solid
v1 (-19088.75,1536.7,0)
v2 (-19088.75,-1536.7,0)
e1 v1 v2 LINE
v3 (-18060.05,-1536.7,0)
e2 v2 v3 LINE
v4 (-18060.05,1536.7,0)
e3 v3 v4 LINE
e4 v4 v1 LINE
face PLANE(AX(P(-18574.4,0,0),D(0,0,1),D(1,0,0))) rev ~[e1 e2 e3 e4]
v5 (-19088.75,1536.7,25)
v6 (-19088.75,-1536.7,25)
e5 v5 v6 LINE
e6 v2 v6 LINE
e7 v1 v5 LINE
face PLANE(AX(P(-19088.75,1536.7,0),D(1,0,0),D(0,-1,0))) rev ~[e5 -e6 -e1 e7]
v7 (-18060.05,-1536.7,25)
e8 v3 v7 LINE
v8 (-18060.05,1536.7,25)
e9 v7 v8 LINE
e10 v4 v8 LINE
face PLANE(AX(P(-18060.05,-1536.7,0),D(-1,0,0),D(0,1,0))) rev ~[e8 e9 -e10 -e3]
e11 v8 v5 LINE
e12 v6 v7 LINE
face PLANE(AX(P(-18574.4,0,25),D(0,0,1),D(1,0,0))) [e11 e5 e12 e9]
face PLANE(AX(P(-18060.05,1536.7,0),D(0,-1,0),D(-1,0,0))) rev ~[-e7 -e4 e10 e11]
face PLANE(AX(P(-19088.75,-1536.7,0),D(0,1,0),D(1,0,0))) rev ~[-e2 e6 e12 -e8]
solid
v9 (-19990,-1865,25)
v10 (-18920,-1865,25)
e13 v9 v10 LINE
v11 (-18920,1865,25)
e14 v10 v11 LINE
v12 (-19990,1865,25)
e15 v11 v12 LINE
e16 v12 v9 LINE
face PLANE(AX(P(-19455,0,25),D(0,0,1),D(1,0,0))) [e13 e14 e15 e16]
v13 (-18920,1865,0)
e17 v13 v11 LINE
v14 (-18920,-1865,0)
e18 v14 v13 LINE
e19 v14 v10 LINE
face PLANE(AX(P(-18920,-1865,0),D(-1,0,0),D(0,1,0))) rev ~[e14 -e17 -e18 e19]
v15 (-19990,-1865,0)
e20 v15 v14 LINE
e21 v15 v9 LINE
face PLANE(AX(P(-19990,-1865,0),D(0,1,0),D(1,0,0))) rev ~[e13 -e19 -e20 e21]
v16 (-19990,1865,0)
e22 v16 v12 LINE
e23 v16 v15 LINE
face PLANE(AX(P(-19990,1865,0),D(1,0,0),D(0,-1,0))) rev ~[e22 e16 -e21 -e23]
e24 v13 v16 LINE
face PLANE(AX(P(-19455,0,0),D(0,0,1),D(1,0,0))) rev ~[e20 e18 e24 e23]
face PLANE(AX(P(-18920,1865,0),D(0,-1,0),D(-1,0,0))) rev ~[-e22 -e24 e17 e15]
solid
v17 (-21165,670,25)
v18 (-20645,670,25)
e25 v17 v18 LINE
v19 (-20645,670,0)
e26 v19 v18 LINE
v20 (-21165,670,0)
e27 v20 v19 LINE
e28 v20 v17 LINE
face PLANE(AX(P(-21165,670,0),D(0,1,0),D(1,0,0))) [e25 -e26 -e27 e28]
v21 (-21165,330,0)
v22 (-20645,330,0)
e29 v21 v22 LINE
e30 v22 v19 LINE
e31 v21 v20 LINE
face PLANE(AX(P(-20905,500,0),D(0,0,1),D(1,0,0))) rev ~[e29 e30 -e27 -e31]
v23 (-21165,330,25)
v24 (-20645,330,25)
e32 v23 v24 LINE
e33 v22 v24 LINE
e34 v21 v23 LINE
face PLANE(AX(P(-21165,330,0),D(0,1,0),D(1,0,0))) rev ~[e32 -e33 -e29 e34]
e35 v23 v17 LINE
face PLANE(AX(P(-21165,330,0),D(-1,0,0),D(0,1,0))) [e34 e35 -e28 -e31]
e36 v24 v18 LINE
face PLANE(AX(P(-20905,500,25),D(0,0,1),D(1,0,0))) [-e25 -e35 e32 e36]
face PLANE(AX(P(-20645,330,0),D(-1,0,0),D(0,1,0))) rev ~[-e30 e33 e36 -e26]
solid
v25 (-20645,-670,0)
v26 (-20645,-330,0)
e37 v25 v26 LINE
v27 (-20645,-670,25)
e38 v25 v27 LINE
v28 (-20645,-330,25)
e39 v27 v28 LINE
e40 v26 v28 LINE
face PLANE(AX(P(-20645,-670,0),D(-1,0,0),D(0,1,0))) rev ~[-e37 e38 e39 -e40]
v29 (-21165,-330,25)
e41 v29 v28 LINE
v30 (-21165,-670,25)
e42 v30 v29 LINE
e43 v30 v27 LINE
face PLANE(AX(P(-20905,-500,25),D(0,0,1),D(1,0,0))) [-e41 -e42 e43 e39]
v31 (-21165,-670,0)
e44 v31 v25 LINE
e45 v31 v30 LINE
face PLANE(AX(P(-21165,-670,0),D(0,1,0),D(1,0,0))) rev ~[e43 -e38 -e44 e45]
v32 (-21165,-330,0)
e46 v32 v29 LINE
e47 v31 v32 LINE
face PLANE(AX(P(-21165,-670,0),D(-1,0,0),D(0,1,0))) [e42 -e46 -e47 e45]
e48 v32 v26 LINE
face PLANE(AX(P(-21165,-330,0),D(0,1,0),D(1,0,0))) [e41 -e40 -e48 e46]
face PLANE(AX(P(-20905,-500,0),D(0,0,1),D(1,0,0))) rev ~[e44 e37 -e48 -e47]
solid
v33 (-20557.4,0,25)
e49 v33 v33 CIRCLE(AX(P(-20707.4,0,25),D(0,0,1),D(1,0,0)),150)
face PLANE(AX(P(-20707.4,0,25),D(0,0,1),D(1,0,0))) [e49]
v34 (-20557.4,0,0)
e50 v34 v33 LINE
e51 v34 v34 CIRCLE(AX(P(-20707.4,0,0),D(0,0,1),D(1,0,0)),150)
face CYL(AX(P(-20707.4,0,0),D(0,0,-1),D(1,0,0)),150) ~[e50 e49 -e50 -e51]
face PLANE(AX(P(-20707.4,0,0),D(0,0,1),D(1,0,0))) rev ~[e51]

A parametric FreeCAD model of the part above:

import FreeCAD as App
import Part
import Sketcher

doc = App.newDocument("Part")
body = doc.addObject("PartDesign::Body", "Body")

# Sketch on XY plane
sketch1 = doc.addObject("Sketcher::SketchObject", "Sketch")
body.addObject(sketch1)
sketch1.AttachmentSupport = (doc.XY_Plane, [""])
sketch1.MapMode = "FlatFace"
sketch1.addGeometry(Part.LineSegment(App.Vector(-18920, -1865, 0), App.Vector(-18920, 1865, 0)), False)
sketch1.addGeometry(Part.LineSegment(App.Vector(-18920, 1865, 0), App.Vector(-19990, 1865, 0)), False)
sketch1.addGeometry(Part.LineSegment(App.Vector(-19990, 1865, 0), App.Vector(-19990, -1865, 0)), False)
sketch1.addGeometry(Part.LineSegment(App.Vector(-19990, -1865, 0), App.Vector(-18920, -1865, 0)), False)
sketch1.addConstraint(Sketcher.Constraint("Coincident", 0, 2, 1, 1))
sketch1.addConstraint(Sketcher.Constraint("Coincident", 1, 2, 2, 1))
sketch1.addConstraint(Sketcher.Constraint("Coincident", 2, 2, 3, 1))
sketch1.addConstraint(Sketcher.Constraint("Coincident", 3, 2, 0, 1))
sketch1.addConstraint(Sketcher.Constraint("Vertical", 0))
sketch1.addConstraint(Sketcher.Constraint("Horizontal", 1))
sketch1.addConstraint(Sketcher.Constraint("Vertical", 2))
sketch1.addConstraint(Sketcher.Constraint("Horizontal", 3))
sketch1.addConstraint(Sketcher.Constraint("DistanceX", 1, 2, 1, 1, 1070.0))
sketch1.addConstraint(Sketcher.Constraint("DistanceY", 0, 1, 0, 2, 3730.0))
sketch1.addConstraint(Sketcher.Constraint("DistanceX", 0, 2, -1, 1, 18920.0))
sketch1.addConstraint(Sketcher.Constraint("DistanceY", -1, 1, 0, 2, 1865.0))
pad1 = doc.addObject("PartDesign::Pad", "Pad")
body.addObject(pad1)
pad1.Profile = sketch1
pad1.Length = 25
body2 = doc.addObject("PartDesign::Body", "Body001")

# Sketch on XY plane
sketch2 = doc.addObject("Sketcher::SketchObject", "Sketch001")
body2.addObject(sketch2)
sketch2.AttachmentSupport = (doc.getObject("XY_Plane001"), [""])
sketch2.MapMode = "FlatFace"
sketch2.addGeometry(Part.LineSegment(App.Vector(-21165, -330, 0), App.Vector(-21165, -670, 0)), False)
sketch2.addGeometry(Part.LineSegment(App.Vector(-21165, -670, 0), App.Vector(-20645, -670, 0)), False)
sketch2.addGeometry(Part.LineSegment(App.Vector(-20645, -670, 0), App.Vector(-20645, -330, 0)), False)
sketch2.addGeometry(Part.LineSegment(App.Vector(-20645, -330, 0), App.Vector(-21165, -330, 0)), False)
sketch2.addConstraint(Sketcher.Constraint("Coincident", 0, 2, 1, 1))
sketch2.addConstraint(Sketcher.Constraint("Coincident", 1, 2, 2, 1))
sketch2.addConstraint(Sketcher.Constraint("Coincident", 2, 2, 3, 1))
sketch2.addConstraint(Sketcher.Constraint("Coincident", 3, 2, 0, 1))
sketch2.addConstraint(Sketcher.Constraint("Vertical", 0))
sketch2.addConstraint(Sketcher.Constraint("Horizontal", 1))
sketch2.addConstraint(Sketcher.Constraint("Vertical", 2))
sketch2.addConstraint(Sketcher.Constraint("Horizontal", 3))
sketch2.addConstraint(Sketcher.Constraint("DistanceX", 1, 1, 1, 2, 520.0))
sketch2.addConstraint(Sketcher.Constraint("DistanceY", 0, 2, 0, 1, 340.0))
sketch2.addConstraint(Sketcher.Constraint("DistanceX", 0, 2, -1, 1, 21165.0))
sketch2.addConstraint(Sketcher.Constraint("DistanceY", 0, 2, -1, 1, 670.0))
pad2 = doc.addObject("PartDesign::Pad", "Pad001")
body2.addObject(pad2)
pad2.Profile = sketch2
pad2.Length = 25
body3 = doc.addObject("PartDesign::Body", "Body002")

# Sketch on XY plane
sketch3 = doc.addObject("Sketcher::SketchObject", "Sketch002")
body3.addObject(sketch3)
sketch3.AttachmentSupport = (doc.getObject("XY_Plane002"), [""])
sketch3.MapMode = "FlatFace"
sketch3.addGeometry(Part.LineSegment(App.Vector(-21165, 670, 0), App.Vector(-21165, 330, 0)), False)
sketch3.addGeometry(Part.LineSegment(App.Vector(-21165, 330, 0), App.Vector(-20645, 330, 0)), False)
sketch3.addGeometry(Part.LineSegment(App.Vector(-20645, 330, 0), App.Vector(-20645, 670, 0)), False)
sketch3.addGeometry(Part.LineSegment(App.Vector(-20645, 670, 0), App.Vector(-21165, 670, 0)), False)
sketch3.addConstraint(Sketcher.Constraint("Coincident", 0, 2, 1, 1))
sketch3.addConstraint(Sketcher.Constraint("Coincident", 1, 2, 2, 1))
sketch3.addConstraint(Sketcher.Constraint("Coincident", 2, 2, 3, 1))
sketch3.addConstraint(Sketcher.Constraint("Coincident", 3, 2, 0, 1))
sketch3.addConstraint(Sketcher.Constraint("Vertical", 0))
sketch3.addConstraint(Sketcher.Constraint("Horizontal", 1))
sketch3.addConstraint(Sketcher.Constraint("Vertical", 2))
sketch3.addConstraint(Sketcher.Constraint("Horizontal", 3))
sketch3.addConstraint(Sketcher.Constraint("DistanceX", 1, 1, 1, 2, 520.0))
sketch3.addConstraint(Sketcher.Constraint("DistanceY", 0, 2, 0, 1, 340.0))
sketch3.addConstraint(Sketcher.Constraint("DistanceX", 0, 2, -1, 1, 21165.0))
sketch3.addConstraint(Sketcher.Constraint("DistanceY", -1, 1, 0, 2, 330.0))
pad3 = doc.addObject("PartDesign::Pad", "Pad002")
body3.addObject(pad3)
pad3.Profile = sketch3
pad3.Length = 25
body4 = doc.addObject("PartDesign::Body", "Body003")

# Sketch on XY plane
sketch4 = doc.addObject("Sketcher::SketchObject", "Sketch003")
body4.addObject(sketch4)
sketch4.AttachmentSupport = (doc.getObject("XY_Plane003"), [""])
sketch4.MapMode = "FlatFace"
sketch4.addGeometry(Part.LineSegment(App.Vector(-19089, -1537, 0), App.Vector(-18060, -1537, 0)), False)
sketch4.addGeometry(Part.LineSegment(App.Vector(-18060, -1537, 0), App.Vector(-18060, 1537, 0)), False)
sketch4.addGeometry(Part.LineSegment(App.Vector(-18060, 1537, 0), App.Vector(-19089, 1537, 0)), False)
sketch4.addGeometry(Part.LineSegment(App.Vector(-19089, 1537, 0), App.Vector(-19089, -1537, 0)), False)
sketch4.addConstraint(Sketcher.Constraint("Coincident", 0, 2, 1, 1))
sketch4.addConstraint(Sketcher.Constraint("Coincident", 1, 2, 2, 1))
sketch4.addConstraint(Sketcher.Constraint("Coincident", 2, 2, 3, 1))
sketch4.addConstraint(Sketcher.Constraint("Coincident", 3, 2, 0, 1))
sketch4.addConstraint(Sketcher.Constraint("Horizontal", 0))
sketch4.addConstraint(Sketcher.Constraint("Vertical", 1))
sketch4.addConstraint(Sketcher.Constraint("Horizontal", 2))
sketch4.addConstraint(Sketcher.Constraint("Vertical", 3))
sketch4.addConstraint(Sketcher.Constraint("DistanceX", 0, 1, 0, 2, 1028.7))
sketch4.addConstraint(Sketcher.Constraint("DistanceY", 1, 1, 1, 2, 3073.4))
sketch4.addConstraint(Sketcher.Constraint("DistanceY", 0, 2, -1, 1, 1536.7))
sketch4.addConstraint(Sketcher.Constraint("DistanceX", 0, 2, -1, 1, 18060.05))
pad4 = doc.addObject("PartDesign::Pad", "Pad003")
body4.addObject(pad4)
pad4.Profile = sketch4
pad4.Length = 25
body5 = doc.addObject("PartDesign::Body", "Body004")

# Sketch on XY plane
sketch5 = doc.addObject("Sketcher::SketchObject", "Sketch004")
body5.addObject(sketch5)
sketch5.AttachmentSupport = (doc.getObject("XY_Plane004"), [""])
sketch5.MapMode = "FlatFace"
sketch5.addGeometry(Part.Circle(App.Vector(-20707, 0, 0), App.Vector(0, 0, 1), 150), False)
sketch5.addConstraint(Sketcher.Constraint("PointOnObject", 0, 3, -1))
sketch5.addConstraint(Sketcher.Constraint("Diameter", 0, 300.0))
sketch5.addConstraint(Sketcher.Constraint("DistanceX", 0, 3, -1, 1, 20707.4))
pad5 = doc.addObject("PartDesign::Pad", "Pad004")
body5.addObject(pad5)
pad5.Profile = sketch5
pad5.Length = 25

doc.recompute()
